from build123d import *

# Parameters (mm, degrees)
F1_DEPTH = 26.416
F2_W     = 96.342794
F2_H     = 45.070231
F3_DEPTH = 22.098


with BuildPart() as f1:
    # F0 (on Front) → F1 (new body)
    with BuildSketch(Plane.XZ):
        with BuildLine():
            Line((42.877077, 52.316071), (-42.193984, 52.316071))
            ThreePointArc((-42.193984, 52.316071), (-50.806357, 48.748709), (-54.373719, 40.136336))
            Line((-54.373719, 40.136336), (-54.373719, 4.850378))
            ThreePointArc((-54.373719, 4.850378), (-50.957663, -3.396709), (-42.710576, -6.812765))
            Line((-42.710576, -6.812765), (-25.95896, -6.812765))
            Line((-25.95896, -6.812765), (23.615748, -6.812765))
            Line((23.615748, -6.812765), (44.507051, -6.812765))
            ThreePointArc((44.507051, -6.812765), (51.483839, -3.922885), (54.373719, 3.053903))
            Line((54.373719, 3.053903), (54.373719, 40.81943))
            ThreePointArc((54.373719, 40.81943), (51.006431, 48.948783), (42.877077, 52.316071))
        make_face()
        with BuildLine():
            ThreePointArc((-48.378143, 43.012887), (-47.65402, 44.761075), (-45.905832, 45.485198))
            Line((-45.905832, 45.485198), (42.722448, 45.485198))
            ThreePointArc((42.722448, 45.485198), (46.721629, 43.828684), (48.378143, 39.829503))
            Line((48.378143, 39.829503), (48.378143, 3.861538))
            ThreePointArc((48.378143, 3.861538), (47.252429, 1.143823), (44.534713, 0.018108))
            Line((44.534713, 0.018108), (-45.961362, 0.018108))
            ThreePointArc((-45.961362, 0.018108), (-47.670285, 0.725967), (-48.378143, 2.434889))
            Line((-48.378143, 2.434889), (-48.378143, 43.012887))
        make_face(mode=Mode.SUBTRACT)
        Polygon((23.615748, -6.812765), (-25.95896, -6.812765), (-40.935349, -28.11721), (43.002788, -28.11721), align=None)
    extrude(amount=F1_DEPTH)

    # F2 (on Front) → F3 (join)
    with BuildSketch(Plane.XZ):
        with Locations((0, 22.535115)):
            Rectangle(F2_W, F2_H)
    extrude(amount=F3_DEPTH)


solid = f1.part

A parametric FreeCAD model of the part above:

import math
import FreeCAD as App
import Part
import Sketcher


def add_polygon(sketch, points):
    """Adds a closed chain of lines whose ends are joined by coincident constraints."""
    first, n = sketch.GeometryCount, len(points)
    for a, b in zip(points, points[1:] + points[:1]):
        sketch.addGeometry(Part.LineSegment(App.Vector(*a, 0), App.Vector(*b, 0)), False)
    for i in range(n):
        sketch.addConstraint(Sketcher.Constraint("Coincident", first + i, 2, first + (i + 1) % n, 1))

doc = App.newDocument("Part")
params = doc.addObject("Spreadsheet::Sheet", "Params")
for row, (alias, value) in enumerate([
    ("pad1_length", "1.04 in"),
    ("pad2_length", "0.87 in"),
], start=1):
    params.set(f"A{row}", alias)
    params.set(f"B{row}", "=" + value)
    params.setAlias(f"B{row}", alias)

body = doc.addObject("PartDesign::Body", "Body")

# Sketch on XZ plane
sketch1 = body.newObject("Sketcher::SketchObject", "Sketch")
sketch1.AttachmentSupport = (doc.getObject("XZ_Plane"), [""])
sketch1.MapMode = "FlatFace"
sketch1.addGeometry(Part.LineSegment(App.Vector(42.9, 52.3, 0), App.Vector(-42.2, 52.3, 0)), False)
sketch1.addGeometry(Part.ArcOfCircle(Part.Circle(App.Vector(-42.2, 40.1, 0), App.Vector(0, 0, 1), 12.2), math.radians(90), math.radians(180)), False)
sketch1.addGeometry(Part.LineSegment(App.Vector(-54.4, 40.1, 0), App.Vector(-54.4, 4.9, 0)), False)
sketch1.addGeometry(Part.ArcOfCircle(Part.Circle(App.Vector(-42.7, 4.9, 0), App.Vector(0, 0, 1), 11.7), math.radians(-180), math.radians(-90)), False)
sketch1.addGeometry(Part.LineSegment(App.Vector(-42.7, -6.8, 0), App.Vector(-26, -6.8, 0)), False)
sketch1.addGeometry(Part.LineSegment(App.Vector(-26, -6.8, 0), App.Vector(-40.9, -28.1, 0)), False)
sketch1.addGeometry(Part.LineSegment(App.Vector(-40.9, -28.1, 0), App.Vector(43, -28.1, 0)), False)
sketch1.addGeometry(Part.LineSegment(App.Vector(43, -28.1, 0), App.Vector(23.6, -6.8, 0)), False)
sketch1.addGeometry(Part.LineSegment(App.Vector(23.6, -6.8, 0), App.Vector(44.5, -6.8, 0)), False)
sketch1.addGeometry(Part.ArcOfCircle(Part.Circle(App.Vector(44.5, 3.1, 0), App.Vector(0, 0, 1), 9.9), math.radians(-90), math.radians(0)), False)
sketch1.addGeometry(Part.LineSegment(App.Vector(54.4, 3.1, 0), App.Vector(54.4, 40.8, 0)), False)
sketch1.addGeometry(Part.ArcOfCircle(Part.Circle(App.Vector(42.9, 40.8, 0), App.Vector(0, 0, 1), 11.5), math.radians(0), math.radians(90)), False)
sketch1.addGeometry(Part.LineSegment(App.Vector(-48.4, 2.4, 0), App.Vector(-48.4, 43, 0)), False)
sketch1.addGeometry(Part.ArcOfCircle(Part.Circle(App.Vector(-45.9, 43, 0), App.Vector(0, 0, 1), 2.5), math.radians(90), math.radians(180)), False)
sketch1.addGeometry(Part.LineSegment(App.Vector(-45.9, 45.5, 0), App.Vector(42.7, 45.5, 0)), False)
sketch1.addGeometry(Part.ArcOfCircle(Part.Circle(App.Vector(42.7, 39.8, 0), App.Vector(0, 0, 1), 5.7), math.radians(0), math.radians(90)), False)
sketch1.addGeometry(Part.LineSegment(App.Vector(48.4, 39.8, 0), App.Vector(48.4, 3.9, 0)), False)
sketch1.addGeometry(Part.ArcOfCircle(Part.Circle(App.Vector(44.5, 3.9, 0), App.Vector(0, 0, 1), 3.8), math.radians(-90), math.radians(0)), False)
sketch1.addGeometry(Part.LineSegment(App.Vector(44.5, 0, 0), App.Vector(-46, 0, 0)), False)
sketch1.addGeometry(Part.ArcOfCircle(Part.Circle(App.Vector(-46, 2.4, 0), App.Vector(0, 0, 1), 2.4), math.radians(180), math.radians(270)), False)
sketch1.addConstraint(Sketcher.Constraint("Tangent", 0, 2, 1, 1))
sketch1.addConstraint(Sketcher.Constraint("Tangent", 1, 2, 2, 1))
sketch1.addConstraint(Sketcher.Constraint("Tangent", 2, 2, 3, 1))
sketch1.addConstraint(Sketcher.Constraint("Tangent", 3, 2, 4, 1))
sketch1.addConstraint(Sketcher.Constraint("Coincident", 4, 2, 5, 1))
sketch1.addConstraint(Sketcher.Constraint("Coincident", 5, 2, 6, 1))
sketch1.addConstraint(Sketcher.Constraint("Coincident", 6, 2, 7, 1))
sketch1.addConstraint(Sketcher.Constraint("Coincident", 7, 2, 8, 1))
sketch1.addConstraint(Sketcher.Constraint("Tangent", 8, 2, 9, 1))
sketch1.addConstraint(Sketcher.Constraint("Tangent", 9, 2, 10, 1))
sketch1.addConstraint(Sketcher.Constraint("Tangent", 10, 2, 11, 1))
sketch1.addConstraint(Sketcher.Constraint("Tangent", 11, 2, 0, 1))
sketch1.addConstraint(Sketcher.Constraint("Tangent", 12, 2, 13, 2))
sketch1.addConstraint(Sketcher.Constraint("Tangent", 13, 1, 14, 1))
sketch1.addConstraint(Sketcher.Constraint("Tangent", 14, 2, 15, 2))
sketch1.addConstraint(Sketcher.Constraint("Tangent", 15, 1, 16, 1))
sketch1.addConstraint(Sketcher.Constraint("Tangent", 16, 2, 17, 2))
sketch1.addConstraint(Sketcher.Constraint("Tangent", 17, 1, 18, 1))
sketch1.addConstraint(Sketcher.Constraint("Tangent", 18, 2, 19, 2))
sketch1.addConstraint(Sketcher.Constraint("Tangent", 19, 1, 12, 1))
sketch1.addConstraint(Sketcher.Constraint("Horizontal", 0))
sketch1.addConstraint(Sketcher.Constraint("Vertical", 2))
sketch1.addConstraint(Sketcher.Constraint("Horizontal", 4))
sketch1.addConstraint(Sketcher.Constraint("Horizontal", 6))
sketch1.addConstraint(Sketcher.Constraint("Horizontal", 8))
sketch1.addConstraint(Sketcher.Constraint("Vertical", 10))
sketch1.addConstraint(Sketcher.Constraint("Vertical", 12))
sketch1.addConstraint(Sketcher.Constraint("Horizontal", 14))
sketch1.addConstraint(Sketcher.Constraint("Vertical", 16))
sketch1.addConstraint(Sketcher.Constraint("Horizontal", 18))
sketch1.addConstraint(Sketcher.Constraint("Horizontal", 4, 2, 7, 2))
sketch1.addConstraint(Sketcher.Constraint("Radius", 11, 11.49664))
sketch1.addConstraint(Sketcher.Constraint("Radius", 13, 2.472311))
sketch1.addConstraint(Sketcher.Constraint("Radius", 17, 3.84343))
sketch1.addConstraint(Sketcher.Constraint("Radius", 19, 2.41678))
sketch1.addConstraint(Sketcher.Constraint("Radius", 1, 12.179736))
sketch1.addConstraint(Sketcher.Constraint("Radius", 3, 11.663145))
sketch1.addConstraint(Sketcher.Constraint("Radius", 9, 9.866667))
sketch1.addConstraint(Sketcher.Constraint("Radius", 15, 5.655693))
sketch1.addConstraint(Sketcher.Constraint("DistanceX", 0, 2, 0, 1, 85.071061))
sketch1.addConstraint(Sketcher.Constraint("DistanceX", 14, 1, 14, 2, 88.62828))
sketch1.addConstraint(Sketcher.Constraint("DistanceX", 15, 3, 9, 3, 1.784601))
sketch1.addConstraint(Sketcher.Constraint("DistanceY", 19, 3, 13, 3, 40.577999))
sketch1.addConstraint(Sketcher.Constraint("DistanceY", 3, 2, 1, 3, 46.9491))
sketch1.addConstraint(Sketcher.Constraint("DistanceY", 5, 2, 19, 3, 30.552098))
sketch1.addConstraint(Sketcher.Constraint("DistanceX", 18, 2, 4, 2, 20.002402))
sketch1.addConstraint(Sketcher.Constraint("Distance", 5, 26.041728))
sketch1.addConstraint(Sketcher.Constraint("Distance", 7, 28.805151))
sketch1.addConstraint(Sketcher.Constraint("DistanceX", 6, 1, 6, 2, 83.938137))
sketch1.addConstraint(Sketcher.Constraint("DistanceX", 8, 1, 8, 2, 20.891303))
sketch1.addConstraint(Sketcher.Constraint("DistanceY", -1, 1, 3, 3, 4.85038))
sketch1.addConstraint(Sketcher.Constraint("DistanceX", -1, 1, 9, 3, 44.507052))
pad1 = body.newObject("PartDesign::Pad", "Pad")
pad1.Profile = sketch1
pad1.setExpression("Length", "Params.pad1_length")

# Sketch on XZ plane
sketch2 = body.newObject("Sketcher::SketchObject", "Sketch001")
sketch2.AttachmentSupport = (doc.getObject("XZ_Plane"), [""])
sketch2.MapMode = "FlatFace"
add_polygon(sketch2, [(-48, 45), (-48, 0), (48, 0), (48, 45)])  # lines 0-3
sketch2.addConstraint(Sketcher.Constraint("Vertical", 0))
sketch2.addConstraint(Sketcher.Constraint("Horizontal", 1))
sketch2.addConstraint(Sketcher.Constraint("Vertical", 2))
sketch2.addConstraint(Sketcher.Constraint("Horizontal", 3))
sketch2.addConstraint(Sketcher.Constraint("Symmetric", 0, 2, 1, 2, -1, 1))
sketch2.addConstraint(Sketcher.Constraint("DistanceY", 0, 2, 0, 1, 45.070231))
sketch2.addConstraint(Sketcher.Constraint("DistanceX", 1, 1, 1, 2, 96.342794))
pad2 = body.newObject("PartDesign::Pad", "Pad001")
pad2.Profile = sketch2
pad2.setExpression("Length", "Params.pad2_length")

doc.recompute()
